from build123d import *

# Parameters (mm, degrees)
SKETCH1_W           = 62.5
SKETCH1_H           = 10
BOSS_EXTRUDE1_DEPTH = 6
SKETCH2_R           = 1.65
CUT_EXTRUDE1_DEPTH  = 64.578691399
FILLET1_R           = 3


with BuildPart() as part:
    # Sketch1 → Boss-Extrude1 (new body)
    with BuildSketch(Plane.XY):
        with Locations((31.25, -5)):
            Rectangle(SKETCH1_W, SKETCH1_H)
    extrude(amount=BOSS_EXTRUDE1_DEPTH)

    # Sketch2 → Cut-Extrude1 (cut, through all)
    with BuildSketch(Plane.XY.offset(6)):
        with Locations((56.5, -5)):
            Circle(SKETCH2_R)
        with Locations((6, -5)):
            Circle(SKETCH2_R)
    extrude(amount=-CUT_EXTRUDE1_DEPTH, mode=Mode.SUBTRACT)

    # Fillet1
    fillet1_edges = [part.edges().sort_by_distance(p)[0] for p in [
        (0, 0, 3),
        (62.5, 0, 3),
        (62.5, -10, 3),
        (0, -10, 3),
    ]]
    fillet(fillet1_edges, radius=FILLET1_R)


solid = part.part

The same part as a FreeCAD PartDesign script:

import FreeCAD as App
import Part
import Sketcher
from FreeCAD import Vector


def edges_at(feature, points):
    """Names of the edges that pass closest to the given points."""
    edges = feature.Shape.Edges
    near = lambda p: min(range(len(edges)), key=lambda i: edges[i].distToShape(Part.Vertex(*p))[0])
    return sorted({f"Edge{near(p) + 1}" for p in points})


def add_polygon(sketch, points):
    """Adds a closed chain of lines whose ends are joined by coincident constraints."""
    first, n = sketch.GeometryCount, len(points)
    for a, b in zip(points, points[1:] + points[:1]):
        sketch.addGeometry(Part.LineSegment(App.Vector(*a, 0), App.Vector(*b, 0)), False)
    for i in range(n):
        sketch.addConstraint(Sketcher.Constraint("Coincident", first + i, 2, first + (i + 1) % n, 1))

doc = App.newDocument("Part")
params = doc.addObject("Spreadsheet::Sheet", "Params")
for row, (alias, value) in enumerate([
    ("sketch1_height", "10 mm"),
    ("sketch1_width", "62.5 mm"),
    ("pad1_length", "6 mm"),
    ("sketch2_diameter", "3.3 mm"),
    ("fillet_radius", "3 mm"),
], start=1):
    params.set(f"A{row}", alias)
    params.set(f"B{row}", "=" + value)
    params.setAlias(f"B{row}", alias)

body = doc.addObject("PartDesign::Body", "Body")

# Sketch on XY plane
sketch1 = doc.addObject("Sketcher::SketchObject", "Sketch")
body.addObject(sketch1)
sketch1.AttachmentSupport = (doc.XY_Plane, [""])
sketch1.MapMode = "FlatFace"
add_polygon(sketch1, [(0, 0), (0, -10), (62.5, -10), (62.5, 0)])  # lines 0-3
sketch1.addConstraint([
    Sketcher.Constraint("Vertical", 0),
    Sketcher.Constraint("Horizontal", 1),
    Sketcher.Constraint("Vertical", 2),
    Sketcher.Constraint("Horizontal", 3),
    Sketcher.Constraint("Coincident", 3, 2, -1, 1),
    Sketcher.Constraint("DistanceY", 0, 2, 0, 1, 10.0),
    Sketcher.Constraint("DistanceX", 1, 1, 1, 2, 62.5),
])
sketch1.setExpression("Constraints[9]", "Params.sketch1_height")
sketch1.setExpression("Constraints[10]", "Params.sketch1_width")
pad1 = doc.addObject("PartDesign::Pad", "Pad")
body.addObject(pad1)
pad1.Profile = sketch1
pad1.setExpression("Length", "Params.pad1_length")

# Sketch on XY plane
sketch2 = doc.addObject("Sketcher::SketchObject", "Sketch001")
body.addObject(sketch2)
sketch2.AttachmentSupport = (doc.XY_Plane, [""])
sketch2.MapMode = "FlatFace"
sketch2.AttachmentOffset = App.Placement(Vector(0, 0, 6), App.Rotation())
sketch2.addGeometry([
    Part.Circle(Vector(56.5, -5, 0), Vector(0, 0, 1), 1.65),
    Part.Circle(Vector(6, -5, 0), Vector(0, 0, 1), 1.65),
], False)
sketch2.addConstraint([
    Sketcher.Constraint("Equal", 0, 1),
    Sketcher.Constraint("Horizontal", 0, 3, 1, 3),
    Sketcher.Constraint("Diameter", 0, 3.3),
    Sketcher.Constraint("DistanceY", 0, 3, -1, 1, 5.0),
    Sketcher.Constraint("DistanceX", -1, 1, 1, 3, 6.0),
    Sketcher.Constraint("DistanceX", -1, 1, 0, 3, 56.5),
])
sketch2.setExpression("Constraints[2]", "Params.sketch2_diameter")
pocket1 = doc.addObject("PartDesign::Pocket", "Pocket")
body.addObject(pocket1)
pocket1.Profile = sketch2
pocket1.Type = "ThroughAll"
doc.recompute()

fillet = doc.addObject("PartDesign::Fillet", "Fillet")
body.addObject(fillet)
fillet.Base = (pocket1, edges_at(pocket1, [
    (0, 0, 3),
    (62.5, 0, 3),
    (62.5, -10, 3),
    (0, -10, 3),
]))
fillet.setExpression("Radius", "Params.fillet_radius")

doc.recompute()
